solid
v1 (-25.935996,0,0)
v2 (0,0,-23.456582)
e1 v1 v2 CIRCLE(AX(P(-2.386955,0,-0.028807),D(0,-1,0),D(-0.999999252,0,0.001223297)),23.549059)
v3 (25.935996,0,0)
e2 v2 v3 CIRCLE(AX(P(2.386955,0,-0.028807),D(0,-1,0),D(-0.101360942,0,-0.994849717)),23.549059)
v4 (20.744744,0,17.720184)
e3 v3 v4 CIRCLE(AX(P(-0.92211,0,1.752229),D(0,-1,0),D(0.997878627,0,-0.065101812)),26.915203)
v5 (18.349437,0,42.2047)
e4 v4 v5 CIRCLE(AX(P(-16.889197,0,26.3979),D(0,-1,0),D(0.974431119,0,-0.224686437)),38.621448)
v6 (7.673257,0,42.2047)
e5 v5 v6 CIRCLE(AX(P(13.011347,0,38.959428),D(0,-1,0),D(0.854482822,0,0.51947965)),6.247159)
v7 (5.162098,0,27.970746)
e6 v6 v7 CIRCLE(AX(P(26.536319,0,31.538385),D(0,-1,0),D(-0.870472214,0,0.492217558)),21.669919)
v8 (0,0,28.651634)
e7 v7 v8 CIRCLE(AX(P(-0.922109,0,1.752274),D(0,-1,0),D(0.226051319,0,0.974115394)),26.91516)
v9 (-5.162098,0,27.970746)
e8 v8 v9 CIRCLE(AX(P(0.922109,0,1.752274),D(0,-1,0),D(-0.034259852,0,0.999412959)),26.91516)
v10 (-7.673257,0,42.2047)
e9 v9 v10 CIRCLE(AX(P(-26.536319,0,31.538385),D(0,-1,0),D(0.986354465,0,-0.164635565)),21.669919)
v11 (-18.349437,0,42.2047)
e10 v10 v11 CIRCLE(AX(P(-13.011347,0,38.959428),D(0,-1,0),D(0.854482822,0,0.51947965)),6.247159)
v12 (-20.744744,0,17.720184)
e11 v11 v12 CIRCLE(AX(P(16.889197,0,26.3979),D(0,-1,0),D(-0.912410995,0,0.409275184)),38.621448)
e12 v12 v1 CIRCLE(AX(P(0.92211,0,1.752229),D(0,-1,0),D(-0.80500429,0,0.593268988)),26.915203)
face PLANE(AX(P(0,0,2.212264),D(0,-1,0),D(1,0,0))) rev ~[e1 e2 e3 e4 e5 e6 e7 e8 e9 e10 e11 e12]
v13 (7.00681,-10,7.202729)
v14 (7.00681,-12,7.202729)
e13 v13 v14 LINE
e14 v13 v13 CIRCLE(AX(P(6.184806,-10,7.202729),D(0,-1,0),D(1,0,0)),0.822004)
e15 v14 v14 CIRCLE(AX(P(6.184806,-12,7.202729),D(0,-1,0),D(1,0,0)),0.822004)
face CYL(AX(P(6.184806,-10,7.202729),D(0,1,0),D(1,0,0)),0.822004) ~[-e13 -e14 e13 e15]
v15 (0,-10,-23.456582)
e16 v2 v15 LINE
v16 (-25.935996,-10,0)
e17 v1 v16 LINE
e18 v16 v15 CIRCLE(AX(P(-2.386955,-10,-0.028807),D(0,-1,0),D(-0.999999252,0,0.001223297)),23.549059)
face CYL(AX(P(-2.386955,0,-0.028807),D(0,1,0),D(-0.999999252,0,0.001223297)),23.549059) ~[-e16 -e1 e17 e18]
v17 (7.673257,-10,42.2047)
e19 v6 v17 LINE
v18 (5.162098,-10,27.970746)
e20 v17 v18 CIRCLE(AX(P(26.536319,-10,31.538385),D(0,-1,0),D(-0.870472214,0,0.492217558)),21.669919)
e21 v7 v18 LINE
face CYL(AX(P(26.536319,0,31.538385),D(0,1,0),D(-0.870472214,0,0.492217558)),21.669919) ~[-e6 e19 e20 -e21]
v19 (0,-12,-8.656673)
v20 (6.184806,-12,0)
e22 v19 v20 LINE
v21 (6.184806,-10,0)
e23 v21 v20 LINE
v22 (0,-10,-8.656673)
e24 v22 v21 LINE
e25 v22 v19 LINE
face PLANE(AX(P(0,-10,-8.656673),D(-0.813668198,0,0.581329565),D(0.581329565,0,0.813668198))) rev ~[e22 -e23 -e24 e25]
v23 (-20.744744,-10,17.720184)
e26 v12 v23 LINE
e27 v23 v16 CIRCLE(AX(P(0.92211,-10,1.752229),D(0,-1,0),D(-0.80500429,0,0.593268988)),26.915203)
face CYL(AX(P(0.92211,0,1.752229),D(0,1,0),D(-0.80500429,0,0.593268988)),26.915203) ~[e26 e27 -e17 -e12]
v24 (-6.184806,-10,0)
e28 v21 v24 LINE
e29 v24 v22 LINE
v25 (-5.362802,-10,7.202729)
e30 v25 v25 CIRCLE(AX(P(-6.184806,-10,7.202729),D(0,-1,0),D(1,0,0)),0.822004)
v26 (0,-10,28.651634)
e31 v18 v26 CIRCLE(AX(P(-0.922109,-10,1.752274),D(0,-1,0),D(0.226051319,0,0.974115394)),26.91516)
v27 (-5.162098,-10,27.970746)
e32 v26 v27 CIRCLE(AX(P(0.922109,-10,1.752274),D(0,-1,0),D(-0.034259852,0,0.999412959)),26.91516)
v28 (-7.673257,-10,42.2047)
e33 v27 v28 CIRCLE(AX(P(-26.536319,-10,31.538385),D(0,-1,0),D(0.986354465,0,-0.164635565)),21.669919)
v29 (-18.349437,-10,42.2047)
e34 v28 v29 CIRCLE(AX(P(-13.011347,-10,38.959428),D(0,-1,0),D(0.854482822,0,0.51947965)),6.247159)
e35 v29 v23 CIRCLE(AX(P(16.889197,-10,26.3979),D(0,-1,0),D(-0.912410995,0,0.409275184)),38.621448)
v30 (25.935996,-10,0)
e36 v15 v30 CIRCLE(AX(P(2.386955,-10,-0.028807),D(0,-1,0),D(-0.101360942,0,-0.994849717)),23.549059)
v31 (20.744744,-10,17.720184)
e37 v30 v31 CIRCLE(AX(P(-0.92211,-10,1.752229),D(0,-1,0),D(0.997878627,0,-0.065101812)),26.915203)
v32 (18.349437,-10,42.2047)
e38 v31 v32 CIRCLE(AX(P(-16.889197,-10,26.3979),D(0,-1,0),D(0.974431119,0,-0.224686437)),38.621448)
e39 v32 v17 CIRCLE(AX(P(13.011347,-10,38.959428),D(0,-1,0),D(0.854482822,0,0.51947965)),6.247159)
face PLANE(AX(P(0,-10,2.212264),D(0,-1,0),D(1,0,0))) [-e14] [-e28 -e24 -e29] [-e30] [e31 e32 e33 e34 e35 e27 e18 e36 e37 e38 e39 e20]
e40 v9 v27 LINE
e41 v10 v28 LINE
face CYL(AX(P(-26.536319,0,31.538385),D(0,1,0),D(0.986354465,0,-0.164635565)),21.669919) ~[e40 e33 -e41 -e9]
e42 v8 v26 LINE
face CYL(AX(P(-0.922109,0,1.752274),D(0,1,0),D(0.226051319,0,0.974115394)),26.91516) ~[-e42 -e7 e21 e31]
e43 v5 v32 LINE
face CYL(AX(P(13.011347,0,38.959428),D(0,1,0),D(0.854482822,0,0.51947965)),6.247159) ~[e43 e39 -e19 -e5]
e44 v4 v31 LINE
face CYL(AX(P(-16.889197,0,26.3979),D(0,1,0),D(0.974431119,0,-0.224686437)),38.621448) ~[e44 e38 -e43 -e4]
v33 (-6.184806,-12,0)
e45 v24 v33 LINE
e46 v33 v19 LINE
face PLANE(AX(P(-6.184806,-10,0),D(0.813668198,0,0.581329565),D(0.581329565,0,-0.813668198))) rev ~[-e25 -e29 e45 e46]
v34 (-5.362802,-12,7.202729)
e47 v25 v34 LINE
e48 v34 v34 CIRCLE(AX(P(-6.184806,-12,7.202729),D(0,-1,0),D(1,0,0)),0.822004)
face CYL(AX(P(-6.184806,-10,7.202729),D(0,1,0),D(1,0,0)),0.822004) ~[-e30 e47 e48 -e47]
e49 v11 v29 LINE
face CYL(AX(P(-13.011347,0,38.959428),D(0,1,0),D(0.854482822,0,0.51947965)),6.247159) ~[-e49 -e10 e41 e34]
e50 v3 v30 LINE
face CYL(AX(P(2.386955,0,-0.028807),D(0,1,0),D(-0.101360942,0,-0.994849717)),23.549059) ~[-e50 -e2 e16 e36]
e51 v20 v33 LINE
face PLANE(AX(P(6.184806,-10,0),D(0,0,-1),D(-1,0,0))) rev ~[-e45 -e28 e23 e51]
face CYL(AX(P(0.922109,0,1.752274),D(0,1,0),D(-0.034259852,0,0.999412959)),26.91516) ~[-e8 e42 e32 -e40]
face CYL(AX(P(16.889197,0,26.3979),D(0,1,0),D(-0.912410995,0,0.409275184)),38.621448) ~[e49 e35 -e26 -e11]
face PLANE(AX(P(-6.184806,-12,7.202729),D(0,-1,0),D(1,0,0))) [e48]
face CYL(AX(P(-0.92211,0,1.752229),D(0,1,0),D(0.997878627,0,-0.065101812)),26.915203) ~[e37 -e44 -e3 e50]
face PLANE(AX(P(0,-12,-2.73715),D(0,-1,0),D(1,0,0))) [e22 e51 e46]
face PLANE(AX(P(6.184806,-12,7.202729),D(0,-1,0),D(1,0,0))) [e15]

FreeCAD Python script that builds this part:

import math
import FreeCAD as App
import Part
import Sketcher

V = App.Vector

doc = App.newDocument("Part")
body = doc.addObject("PartDesign::Body", "Body")

sketch1 = body.newObject("Sketcher::SketchObject", "Sketch")
sketch1.AttachmentSupport = (doc.getObject("XZ_Plane"), [""])
sketch1.MapMode = "FlatFace"
sketch1.addGeometry([
    Part.ArcOfCircle(Part.Circle(V(1, 2, 0), V(0, 0, 1), 27), math.radians(144), math.radians(184)),
    Part.ArcOfCircle(Part.Circle(V(-2, 0, 0), V(0, 0, 1), 24), math.radians(180), math.radians(276)),
    Part.ArcOfCircle(Part.Circle(V(2, 0, 0), V(0, 0, 1), 24), math.radians(-96), math.radians(0)),
    Part.ArcOfCircle(Part.Circle(V(-1, 2, 0), V(0, 0, 1), 27), math.radians(-4), math.radians(36)),
    Part.ArcOfCircle(Part.Circle(V(-17, 26, 0), V(0, 0, 1), 39), math.radians(-13), math.radians(24)),
    Part.ArcOfCircle(Part.Circle(V(13, 39, 0), V(0, 0, 1), 6), math.radians(31), math.radians(149)),
    Part.ArcOfCircle(Part.Circle(V(27, 32, 0), V(0, 0, 1), 22), math.radians(151), math.radians(189)),
    Part.ArcOfCircle(Part.Circle(V(-1, 2, 0), V(0, 0, 1), 27), math.radians(76.94), math.radians(88.04)),
    Part.ArcOfCircle(Part.Circle(V(1, 2, 0), V(0, 0, 1), 27), math.radians(91.96), math.radians(103.06)),
    Part.ArcOfCircle(Part.Circle(V(-27, 32, 0), V(0, 0, 1), 22), math.radians(-9), math.radians(29)),
    Part.ArcOfCircle(Part.Circle(V(-13, 39, 0), V(0, 0, 1), 6), math.radians(31), math.radians(149)),
    Part.ArcOfCircle(Part.Circle(V(17, 26, 0), V(0, 0, 1), 39), math.radians(156), math.radians(193)),
], False)
sketch1.addConstraint([
    Sketcher.Constraint("Coincident", 0, 2, 1, 1),
    Sketcher.Constraint("Coincident", 1, 2, 2, 1),
    Sketcher.Constraint("Coincident", 2, 2, 3, 1),
    Sketcher.Constraint("Coincident", 3, 2, 4, 1),
    Sketcher.Constraint("Coincident", 4, 2, 5, 1),
    Sketcher.Constraint("Coincident", 5, 2, 6, 1),
    Sketcher.Constraint("Coincident", 6, 2, 7, 1),
    Sketcher.Constraint("Coincident", 7, 2, 8, 1),
    Sketcher.Constraint("Coincident", 8, 2, 9, 1),
    Sketcher.Constraint("Coincident", 9, 2, 10, 1),
    Sketcher.Constraint("Coincident", 10, 2, 11, 1),
    Sketcher.Constraint("Coincident", 11, 2, 0, 1),
    Sketcher.Constraint("Equal", 1, 2),
    Sketcher.Constraint("Equal", 0, 3),
    Sketcher.Constraint("Equal", 7, 8),
    Sketcher.Constraint("Equal", 6, 9),
    Sketcher.Constraint("Equal", 5, 10),
    Sketcher.Constraint("Equal", 4, 11),
    Sketcher.Constraint("Symmetric", 0, 2, 2, 2, -1, 1),
    Sketcher.Constraint("Symmetric", 1, 3, 2, 3, -2),
    Sketcher.Constraint("Symmetric", 7, 3, 8, 3, -2),
    Sketcher.Constraint("Symmetric", 6, 3, 9, 3, -2),
    Sketcher.Constraint("Symmetric", 5, 3, 10, 3, -2),
    Sketcher.Constraint("Symmetric", 4, 3, 11, 3, -2),
    Sketcher.Constraint("Horizontal", 0, 3, 3, 3),
    Sketcher.Constraint("Horizontal", 4, 2, 5, 2),
    Sketcher.Constraint("Vertical", 3, 3, 7, 3),
    Sketcher.Constraint("Radius", 1, 23.549059),
    Sketcher.Constraint("Radius", 4, 38.621448),
    Sketcher.Constraint("Radius", 5, 6.247159),
    Sketcher.Constraint("Radius", 6, 21.669919),
    Sketcher.Constraint("Radius", 7, 26.91516),
    Sketcher.Constraint("Radius", 0, 26.915203),
    Sketcher.Constraint("DistanceY", -1, 1, 4, 3, 26.3979),
    Sketcher.Constraint("DistanceY", -1, 1, 4, 2, 42.2047),
    Sketcher.Constraint("DistanceX", -1, 1, 6, 2, 5.162098),
    Sketcher.Constraint("DistanceY", 0, 3, 5, 3, 37.2072),
    Sketcher.Constraint("DistanceX", 1, 3, 5, 3, 15.398302),
    Sketcher.Constraint("DistanceY", 3, 2, 6, 3, 13.818201),
    Sketcher.Constraint("DistanceX", 6, 2, 11, 3, 11.727099),
    Sketcher.Constraint("DistanceX", -1, 1, 0, 3, 0.92211),
    Sketcher.Constraint("DistanceY", 1, 2, -1, 1, 23.456582),
])
pad1 = body.newObject("PartDesign::Pad", "Pad")
pad1.Profile = sketch1
pad1.Length = 10

sketch2 = body.newObject("Sketcher::SketchObject", "Sketch001")
sketch2.AttachmentSupport = (doc.getObject("XZ_Plane"), [""])
sketch2.MapMode = "FlatFace"
sketch2.AttachmentOffset = App.Placement(V(0, 0, 10), App.Rotation())
sketch2.addGeometry([
    Part.LineSegment(V(6.2, 0, 0), V(-6.2, 0, 0)),
    Part.LineSegment(V(-6.2, 0, 0), V(0, -8.7, 0)),
    Part.LineSegment(V(0, -8.7, 0), V(6.2, 0, 0)),
    Part.Circle(V(-6.2, 7.2, 0), V(0, 0, 1), 0.8),
    Part.Circle(V(6.2, 7.2, 0), V(0, 0, 1), 0.8),
], False)
sketch2.addConstraint([
    Sketcher.Constraint("Coincident", 0, 2, 1, 1),
    Sketcher.Constraint("Coincident", 1, 2, 2, 1),
    Sketcher.Constraint("Coincident", 2, 2, 0, 1),
    Sketcher.Constraint("Horizontal", 0),
    Sketcher.Constraint("Equal", 3, 4),
    Sketcher.Constraint("Symmetric", 0, 2, 2, 2, -1, 1),
    Sketcher.Constraint("Symmetric", 3, 3, 4, 3, -2),
    Sketcher.Constraint("PointOnObject", 1, 2, -2),
    Sketcher.Constraint("Vertical", 3, 3, 0, 2),
    Sketcher.Constraint("Diameter", 3, 1.644008),
    Sketcher.Constraint("DistanceY", 1, 2, 3, 3, 15.859402),
    Sketcher.Constraint("Distance", 1, 10.63907),
    Sketcher.Constraint("DistanceX", 0, 2, 0, 1, 12.369612),
])
pad2 = body.newObject("PartDesign::Pad", "Pad001")
pad2.Profile = sketch2
pad2.Length = 2

doc.recompute()
